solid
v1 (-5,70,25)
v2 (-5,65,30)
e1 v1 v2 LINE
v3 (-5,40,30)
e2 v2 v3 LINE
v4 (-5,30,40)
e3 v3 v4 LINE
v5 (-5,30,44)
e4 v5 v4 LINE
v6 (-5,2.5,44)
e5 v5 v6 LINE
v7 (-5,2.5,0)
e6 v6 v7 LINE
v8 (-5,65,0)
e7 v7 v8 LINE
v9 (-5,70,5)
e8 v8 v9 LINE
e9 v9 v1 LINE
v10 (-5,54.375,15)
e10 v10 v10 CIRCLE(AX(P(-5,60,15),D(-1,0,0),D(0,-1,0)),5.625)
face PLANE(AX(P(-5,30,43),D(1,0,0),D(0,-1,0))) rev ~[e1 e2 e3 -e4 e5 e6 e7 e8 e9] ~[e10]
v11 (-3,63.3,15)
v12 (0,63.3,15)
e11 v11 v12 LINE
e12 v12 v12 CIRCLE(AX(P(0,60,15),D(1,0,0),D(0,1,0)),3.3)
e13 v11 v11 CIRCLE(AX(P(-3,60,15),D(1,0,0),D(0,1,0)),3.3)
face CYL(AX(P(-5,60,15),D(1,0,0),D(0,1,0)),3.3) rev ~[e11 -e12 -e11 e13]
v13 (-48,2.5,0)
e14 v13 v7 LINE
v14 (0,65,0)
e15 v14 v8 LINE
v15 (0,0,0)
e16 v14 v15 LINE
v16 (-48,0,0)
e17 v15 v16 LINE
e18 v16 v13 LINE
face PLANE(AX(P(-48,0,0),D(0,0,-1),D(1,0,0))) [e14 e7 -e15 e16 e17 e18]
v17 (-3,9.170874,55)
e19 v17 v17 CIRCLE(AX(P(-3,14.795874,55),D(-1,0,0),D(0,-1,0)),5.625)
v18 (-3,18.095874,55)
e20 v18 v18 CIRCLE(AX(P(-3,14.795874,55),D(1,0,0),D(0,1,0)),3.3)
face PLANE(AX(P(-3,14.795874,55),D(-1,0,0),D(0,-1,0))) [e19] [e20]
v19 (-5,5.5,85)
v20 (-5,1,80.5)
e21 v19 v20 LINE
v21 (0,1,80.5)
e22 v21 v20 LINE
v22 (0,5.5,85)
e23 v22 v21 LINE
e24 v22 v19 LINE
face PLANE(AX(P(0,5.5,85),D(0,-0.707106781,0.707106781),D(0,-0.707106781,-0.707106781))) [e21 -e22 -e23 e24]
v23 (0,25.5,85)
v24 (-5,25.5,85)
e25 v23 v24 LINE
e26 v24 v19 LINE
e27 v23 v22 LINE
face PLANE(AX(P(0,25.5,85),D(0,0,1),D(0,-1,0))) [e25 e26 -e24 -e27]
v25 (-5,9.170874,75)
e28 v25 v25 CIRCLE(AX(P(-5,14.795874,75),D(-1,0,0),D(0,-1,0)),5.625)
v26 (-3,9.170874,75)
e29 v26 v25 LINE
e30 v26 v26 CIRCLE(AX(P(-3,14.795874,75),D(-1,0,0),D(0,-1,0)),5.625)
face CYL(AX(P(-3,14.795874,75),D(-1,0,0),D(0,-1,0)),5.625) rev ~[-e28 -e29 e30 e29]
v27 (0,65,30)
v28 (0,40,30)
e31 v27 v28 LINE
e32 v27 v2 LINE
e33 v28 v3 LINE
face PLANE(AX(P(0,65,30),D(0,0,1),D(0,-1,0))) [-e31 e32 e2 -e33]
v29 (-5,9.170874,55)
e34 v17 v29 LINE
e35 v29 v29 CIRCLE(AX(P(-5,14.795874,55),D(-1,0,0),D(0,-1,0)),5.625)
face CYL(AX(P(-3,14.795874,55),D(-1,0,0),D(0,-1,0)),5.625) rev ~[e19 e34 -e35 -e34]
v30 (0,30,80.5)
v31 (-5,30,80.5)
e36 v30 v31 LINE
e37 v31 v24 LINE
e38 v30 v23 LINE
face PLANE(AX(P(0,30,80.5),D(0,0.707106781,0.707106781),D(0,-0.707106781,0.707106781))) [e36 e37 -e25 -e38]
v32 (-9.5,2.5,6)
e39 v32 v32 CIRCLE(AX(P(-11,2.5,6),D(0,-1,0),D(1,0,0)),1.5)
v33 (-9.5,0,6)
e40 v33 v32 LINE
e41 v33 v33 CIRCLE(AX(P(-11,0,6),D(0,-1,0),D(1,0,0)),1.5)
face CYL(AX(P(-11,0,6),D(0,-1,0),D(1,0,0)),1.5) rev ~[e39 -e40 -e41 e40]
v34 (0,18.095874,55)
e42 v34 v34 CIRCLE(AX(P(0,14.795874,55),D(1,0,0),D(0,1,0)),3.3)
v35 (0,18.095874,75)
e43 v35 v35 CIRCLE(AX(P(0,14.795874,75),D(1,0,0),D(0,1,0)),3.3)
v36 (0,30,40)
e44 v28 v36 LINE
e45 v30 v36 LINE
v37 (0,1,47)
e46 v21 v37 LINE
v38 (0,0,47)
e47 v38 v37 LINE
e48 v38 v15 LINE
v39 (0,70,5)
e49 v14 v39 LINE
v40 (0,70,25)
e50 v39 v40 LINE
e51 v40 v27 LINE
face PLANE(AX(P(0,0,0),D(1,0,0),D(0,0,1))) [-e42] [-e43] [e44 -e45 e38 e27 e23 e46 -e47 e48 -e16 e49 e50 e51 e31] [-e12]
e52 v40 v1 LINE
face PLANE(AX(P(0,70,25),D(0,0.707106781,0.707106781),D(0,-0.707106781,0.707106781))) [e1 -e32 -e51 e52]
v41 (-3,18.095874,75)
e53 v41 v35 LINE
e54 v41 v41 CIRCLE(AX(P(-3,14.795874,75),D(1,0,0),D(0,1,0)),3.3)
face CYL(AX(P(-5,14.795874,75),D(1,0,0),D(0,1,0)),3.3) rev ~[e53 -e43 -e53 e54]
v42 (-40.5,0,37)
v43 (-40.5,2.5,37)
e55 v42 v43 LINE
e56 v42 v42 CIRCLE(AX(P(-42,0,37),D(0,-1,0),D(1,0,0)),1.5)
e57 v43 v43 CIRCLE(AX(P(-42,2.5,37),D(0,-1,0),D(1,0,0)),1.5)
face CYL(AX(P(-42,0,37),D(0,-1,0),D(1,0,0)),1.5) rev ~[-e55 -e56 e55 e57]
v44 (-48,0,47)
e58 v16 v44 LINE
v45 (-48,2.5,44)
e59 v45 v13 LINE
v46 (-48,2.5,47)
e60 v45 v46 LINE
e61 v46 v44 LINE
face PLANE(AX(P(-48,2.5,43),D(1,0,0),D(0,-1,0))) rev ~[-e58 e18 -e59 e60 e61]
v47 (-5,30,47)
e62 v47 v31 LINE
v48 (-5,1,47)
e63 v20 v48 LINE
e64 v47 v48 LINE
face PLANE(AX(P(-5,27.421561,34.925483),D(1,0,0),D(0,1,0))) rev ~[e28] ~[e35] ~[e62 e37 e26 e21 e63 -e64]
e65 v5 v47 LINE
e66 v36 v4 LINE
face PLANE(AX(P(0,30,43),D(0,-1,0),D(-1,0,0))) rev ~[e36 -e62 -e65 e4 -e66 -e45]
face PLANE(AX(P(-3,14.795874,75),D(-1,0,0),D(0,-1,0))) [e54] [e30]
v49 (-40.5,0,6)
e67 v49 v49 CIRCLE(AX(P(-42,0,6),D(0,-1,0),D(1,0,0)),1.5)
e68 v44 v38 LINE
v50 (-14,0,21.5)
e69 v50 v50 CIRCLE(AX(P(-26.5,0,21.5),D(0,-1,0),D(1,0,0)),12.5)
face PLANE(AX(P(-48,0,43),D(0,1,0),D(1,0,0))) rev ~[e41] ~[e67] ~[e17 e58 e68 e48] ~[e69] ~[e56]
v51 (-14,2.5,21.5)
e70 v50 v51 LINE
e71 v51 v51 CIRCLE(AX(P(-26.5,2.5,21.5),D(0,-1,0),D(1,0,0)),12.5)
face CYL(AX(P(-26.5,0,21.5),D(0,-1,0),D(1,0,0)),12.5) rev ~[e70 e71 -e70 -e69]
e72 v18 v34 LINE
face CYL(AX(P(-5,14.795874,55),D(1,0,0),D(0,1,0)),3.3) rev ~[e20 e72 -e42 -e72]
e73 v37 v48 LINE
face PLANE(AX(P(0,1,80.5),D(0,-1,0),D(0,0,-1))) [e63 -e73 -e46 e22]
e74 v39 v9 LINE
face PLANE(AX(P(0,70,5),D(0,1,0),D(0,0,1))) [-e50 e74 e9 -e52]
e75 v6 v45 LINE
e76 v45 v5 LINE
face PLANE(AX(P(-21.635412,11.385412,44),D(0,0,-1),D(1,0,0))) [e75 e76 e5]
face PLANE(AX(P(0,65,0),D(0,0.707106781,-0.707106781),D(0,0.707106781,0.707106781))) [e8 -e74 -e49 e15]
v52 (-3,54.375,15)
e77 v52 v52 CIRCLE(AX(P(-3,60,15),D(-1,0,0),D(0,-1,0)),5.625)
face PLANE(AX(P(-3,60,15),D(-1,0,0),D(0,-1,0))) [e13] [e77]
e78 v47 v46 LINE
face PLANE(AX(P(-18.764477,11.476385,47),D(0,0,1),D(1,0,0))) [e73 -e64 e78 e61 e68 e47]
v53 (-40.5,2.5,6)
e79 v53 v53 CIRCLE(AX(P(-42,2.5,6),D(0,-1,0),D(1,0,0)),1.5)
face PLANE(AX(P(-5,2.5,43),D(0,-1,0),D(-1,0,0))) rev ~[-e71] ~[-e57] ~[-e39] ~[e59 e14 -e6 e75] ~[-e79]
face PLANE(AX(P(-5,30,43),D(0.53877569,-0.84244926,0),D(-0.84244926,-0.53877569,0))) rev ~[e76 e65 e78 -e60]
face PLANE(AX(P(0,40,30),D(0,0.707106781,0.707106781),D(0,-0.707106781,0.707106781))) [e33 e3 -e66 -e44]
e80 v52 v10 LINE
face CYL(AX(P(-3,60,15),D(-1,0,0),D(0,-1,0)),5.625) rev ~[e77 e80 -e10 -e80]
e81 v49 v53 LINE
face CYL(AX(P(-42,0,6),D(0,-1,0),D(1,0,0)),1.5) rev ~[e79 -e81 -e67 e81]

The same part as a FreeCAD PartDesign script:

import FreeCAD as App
import Part
import Sketcher

V = App.Vector

doc = App.newDocument("Part")
body = doc.addObject("PartDesign::Body", "Body")

# Sketch on XZ plane
sketch1 = doc.addObject("Sketcher::SketchObject", "Sketch")
body.addObject(sketch1)
sketch1.AttachmentSupport = (doc.XZ_Plane, [""])
sketch1.MapMode = "FlatFace"
sketch1.addGeometry(Part.LineSegment(V(-48, 43, 0), V(-48, 0, 0)), False)
sketch1.addGeometry(Part.LineSegment(V(-48, 0, 0), V(0, 0, 0)), False)
sketch1.addGeometry(Part.LineSegment(V(0, 0, 0), V(0, 43, 0)), False)
sketch1.addGeometry(Part.LineSegment(V(0, 43, 0), V(-48, 43, 0)), False)
sketch1.addGeometry(Part.Circle(V(-42, 6, 0), V(0, 0, 1), 1.5), False)
sketch1.addGeometry(Part.Circle(V(-11, 6, 0), V(0, 0, 1), 1.5), False)
sketch1.addGeometry(Part.Circle(V(-42, 37, 0), V(0, 0, 1), 1.5), False)
sketch1.addGeometry(Part.Circle(V(-26.5, 21.5, 0), V(0, 0, 1), 12.5), False)
sketch1.addConstraint(Sketcher.Constraint("Coincident", 0, 2, 1, 1))
sketch1.addConstraint(Sketcher.Constraint("Coincident", 1, 2, 2, 1))
sketch1.addConstraint(Sketcher.Constraint("Coincident", 2, 2, 3, 1))
sketch1.addConstraint(Sketcher.Constraint("Coincident", 3, 2, 0, 1))
sketch1.addConstraint(Sketcher.Constraint("Vertical", 0))
sketch1.addConstraint(Sketcher.Constraint("Horizontal", 1))
sketch1.addConstraint(Sketcher.Constraint("Vertical", 2))
sketch1.addConstraint(Sketcher.Constraint("Horizontal", 3))
sketch1.addConstraint(Sketcher.Constraint("Coincident", 1, 2, -1, 1))
sketch1.addConstraint(Sketcher.Constraint("Equal", 4, 5))
sketch1.addConstraint(Sketcher.Constraint("Equal", 5, 6))
sketch1.addConstraint(Sketcher.Constraint("Horizontal", 4, 3, 5, 3))
sketch1.addConstraint(Sketcher.Constraint("Vertical", 4, 3, 6, 3))
sketch1.addConstraint(Sketcher.Constraint("Diameter", 4, 3.0))
sketch1.addConstraint(Sketcher.Constraint("Diameter", 7, 25.0))
sketch1.addConstraint(Sketcher.Constraint("DistanceX", 1, 1, 1, 2, 48.0))
sketch1.addConstraint(Sketcher.Constraint("DistanceY", 0, 2, 0, 1, 43.0))
sketch1.addConstraint(Sketcher.Constraint("DistanceX", 4, 3, -1, 1, 42.0))
sketch1.addConstraint(Sketcher.Constraint("DistanceY", -1, 1, 4, 3, 6.0))
sketch1.addConstraint(Sketcher.Constraint("DistanceX", 5, 3, -1, 1, 11.0))
sketch1.addConstraint(Sketcher.Constraint("DistanceY", -1, 1, 6, 3, 37.0))
sketch1.addConstraint(Sketcher.Constraint("DistanceX", 7, 3, -1, 1, 26.5))
sketch1.addConstraint(Sketcher.Constraint("DistanceY", -1, 1, 7, 3, 21.5))
pad1 = doc.addObject("PartDesign::Pad", "Pad")
body.addObject(pad1)
pad1.Profile = sketch1
pad1.Length = 2.5
pad1.Reversed = True

# Sketch on YZ plane
sketch2 = doc.addObject("Sketcher::SketchObject", "Sketch001")
body.addObject(sketch2)
sketch2.AttachmentSupport = (doc.YZ_Plane, [""])
sketch2.MapMode = "FlatFace"
sketch2.addGeometry(Part.LineSegment(V(1, 43, 0), V(0, 43, 0)), False)
sketch2.addGeometry(Part.LineSegment(V(0, 43, 0), V(0, 0, 0)), False)
sketch2.addGeometry(Part.LineSegment(V(0, 0, 0), V(65, 0, 0)), False)
sketch2.addGeometry(Part.LineSegment(V(65, 0, 0), V(70, 5, 0)), False)
sketch2.addGeometry(Part.LineSegment(V(70, 5, 0), V(70, 25, 0)), False)
sketch2.addGeometry(Part.LineSegment(V(70, 25, 0), V(65, 30, 0)), False)
sketch2.addGeometry(Part.LineSegment(V(65, 30, 0), V(40, 30, 0)), False)
sketch2.addGeometry(Part.LineSegment(V(40, 30, 0), V(30, 40, 0)), False)
sketch2.addGeometry(Part.LineSegment(V(30, 40, 0), V(30, 80.5, 0)), False)
sketch2.addGeometry(Part.LineSegment(V(30, 80.5, 0), V(25.5, 85, 0)), False)
sketch2.addGeometry(Part.LineSegment(V(25.5, 85, 0), V(5.5, 85, 0)), False)
sketch2.addGeometry(Part.LineSegment(V(5.5, 85, 0), V(1, 80.5, 0)), False)
sketch2.addGeometry(Part.LineSegment(V(1, 80.5, 0), V(1, 43, 0)), False)
sketch2.addConstraint(Sketcher.Constraint("Coincident", 0, 2, 1, 1))
sketch2.addConstraint(Sketcher.Constraint("Coincident", 1, 2, 2, 1))
sketch2.addConstraint(Sketcher.Constraint("Coincident", 2, 2, 3, 1))
sketch2.addConstraint(Sketcher.Constraint("Coincident", 3, 2, 4, 1))
sketch2.addConstraint(Sketcher.Constraint("Coincident", 4, 2, 5, 1))
sketch2.addConstraint(Sketcher.Constraint("Coincident", 5, 2, 6, 1))
sketch2.addConstraint(Sketcher.Constraint("Coincident", 6, 2, 7, 1))
sketch2.addConstraint(Sketcher.Constraint("Coincident", 7, 2, 8, 1))
sketch2.addConstraint(Sketcher.Constraint("Coincident", 8, 2, 9, 1))
sketch2.addConstraint(Sketcher.Constraint("Coincident", 9, 2, 10, 1))
sketch2.addConstraint(Sketcher.Constraint("Coincident", 10, 2, 11, 1))
sketch2.addConstraint(Sketcher.Constraint("Coincident", 11, 2, 12, 1))
sketch2.addConstraint(Sketcher.Constraint("Coincident", 12, 2, 0, 1))
sketch2.addConstraint(Sketcher.Constraint("Horizontal", 0))
sketch2.addConstraint(Sketcher.Constraint("Vertical", 1))
sketch2.addConstraint(Sketcher.Constraint("Horizontal", 2))
sketch2.addConstraint(Sketcher.Constraint("Vertical", 4))
sketch2.addConstraint(Sketcher.Constraint("Horizontal", 6))
sketch2.addConstraint(Sketcher.Constraint("Vertical", 8))
sketch2.addConstraint(Sketcher.Constraint("Horizontal", 10))
sketch2.addConstraint(Sketcher.Constraint("Vertical", 12))
sketch2.addConstraint(Sketcher.Constraint("Coincident", 1, 2, -1, 1))
sketch2.addConstraint(Sketcher.Constraint("Perpendicular", 3, 5))
sketch2.addConstraint(Sketcher.Constraint("Parallel", 5, 7))
sketch2.addConstraint(Sketcher.Constraint("Parallel", 7, 9))
sketch2.addConstraint(Sketcher.Constraint("Perpendicular", 9, 11))
sketch2.addConstraint(Sketcher.Constraint("Horizontal", 8, 2, 11, 2))
sketch2.addConstraint(Sketcher.Constraint("Vertical", 2, 2, 5, 2))
sketch2.addConstraint(Sketcher.Constraint("Equal", 10, 4))
sketch2.addConstraint(Sketcher.Constraint("Equal", 3, 5))
sketch2.addConstraint(Sketcher.Constraint("DistanceX", 0, 2, 0, 1, 1.0))
sketch2.addConstraint(Sketcher.Constraint("DistanceX", 2, 1, 2, 2, 65.0))
sketch2.addConstraint(Sketcher.Constraint("DistanceX", 6, 2, 6, 1, 25.0))
sketch2.addConstraint(Sketcher.Constraint("DistanceX", 10, 2, 10, 1, 20.0))
sketch2.addConstraint(Sketcher.Constraint("DistanceY", 1, 2, 1, 1, 43.0))
sketch2.addConstraint(Sketcher.Constraint("DistanceY", 8, 1, 8, 2, 40.5))
sketch2.addConstraint(Sketcher.Constraint("DistanceY", 12, 2, 12, 1, 37.5))
sketch2.addConstraint(Sketcher.Constraint("DistanceX", -1, 1, 3, 2, 70.0))
pad2 = doc.addObject("PartDesign::Pad", "Pad001")
body.addObject(pad2)
pad2.Profile = sketch2
pad2.Length = 5
pad2.Reversed = True

# Sketch on YZ plane
sketch3 = doc.addObject("Sketcher::SketchObject", "Sketch002")
body.addObject(sketch3)
sketch3.AttachmentSupport = (doc.YZ_Plane, [""])
sketch3.MapMode = "FlatFace"
sketch3.AttachmentOffset = App.Placement(V(0, 0, -5), App.Rotation())
sketch3.addGeometry(Part.Circle(V(14.8, 75, 0), V(0, 0, 1), 3.3), False)
sketch3.addGeometry(Part.Circle(V(14.8, 55, 0), V(0, 0, 1), 3.3), False)
sketch3.addGeometry(Part.Circle(V(60, 15, 0), V(0, 0, 1), 3.3), False)
sketch3.addConstraint(Sketcher.Constraint("Equal", 0, 1))
sketch3.addConstraint(Sketcher.Constraint("Equal", 1, 2))
sketch3.addConstraint(Sketcher.Constraint("Vertical", 0, 3, 1, 3))
sketch3.addConstraint(Sketcher.Constraint("Diameter", 0, 6.6))
sketch3.addConstraint(Sketcher.Constraint("DistanceY", -1, 1, 0, 3, 75.0))
sketch3.addConstraint(Sketcher.Constraint("DistanceY", -1, 1, 1, 3, 55.0))
sketch3.addConstraint(Sketcher.Constraint("DistanceX", -1, 1, 2, 3, 60.0))
sketch3.addConstraint(Sketcher.Constraint("DistanceY", -1, 1, 2, 3, 15.0))
sketch3.addConstraint(Sketcher.Constraint("DistanceX", -1, 1, 0, 3, 14.795874))
doc.recompute()
hole = doc.addObject("PartDesign::Hole", "Hole")
body.addObject(hole)
hole.Profile = sketch3
hole.ThreadType = "None"
hole.Diameter = 6.6
hole.DepthType = "Dimension"
hole.Depth = 20
hole.DrillPoint = "Flat"
hole.HoleCutType = "Counterbore"
hole.HoleCutDiameter = 11.25
hole.HoleCutDepth = 2
hole.Reversed = True

# Sketch on XY plane
sketch4 = doc.addObject("Sketcher::SketchObject", "Sketch003")
body.addObject(sketch4)
sketch4.AttachmentSupport = (doc.XY_Plane, [""])
sketch4.MapMode = "FlatFace"
sketch4.AttachmentOffset = App.Placement(V(0, 0, 43), App.Rotation())
sketch4.addGeometry(Part.LineSegment(V(-5, 30, 0), V(-48, 2.5, 0)), False)
sketch4.addGeometry(Part.LineSegment(V(-48, 2.5, 0), V(-48, 0, 0)), False)
sketch4.addGeometry(Part.LineSegment(V(-48, 0, 0), V(0, 0, 0)), False)
sketch4.addGeometry(Part.LineSegment(V(0, 0, 0), V(0, 30, 0)), False)
sketch4.addGeometry(Part.LineSegment(V(0, 30, 0), V(-5, 30, 0)), False)
sketch4.addConstraint(Sketcher.Constraint("Coincident", 0, 2, 1, 1))
sketch4.addConstraint(Sketcher.Constraint("Coincident", 1, 2, 2, 1))
sketch4.addConstraint(Sketcher.Constraint("Coincident", 2, 2, 3, 1))
sketch4.addConstraint(Sketcher.Constraint("Coincident", 3, 2, 4, 1))
sketch4.addConstraint(Sketcher.Constraint("Coincident", 4, 2, 0, 1))
sketch4.addConstraint(Sketcher.Constraint("Vertical", 1))
sketch4.addConstraint(Sketcher.Constraint("Horizontal", 2))
sketch4.addConstraint(Sketcher.Constraint("Vertical", 3))
sketch4.addConstraint(Sketcher.Constraint("Horizontal", 4))
sketch4.addConstraint(Sketcher.Constraint("Coincident", 2, 2, -1, 1))
sketch4.addConstraint(Sketcher.Constraint("DistanceX", 2, 1, 2, 2, 48.0))
sketch4.addConstraint(Sketcher.Constraint("DistanceX", 4, 2, 4, 1, 5.0))
sketch4.addConstraint(Sketcher.Constraint("DistanceY", 3, 1, 3, 2, 30.0))
sketch4.addConstraint(Sketcher.Constraint("DistanceY", 1, 2, 1, 1, 2.5))
pad3 = doc.addObject("PartDesign::Pad", "Pad002")
body.addObject(pad3)
pad3.Profile = sketch4
pad3.Length = 4

# Sketch on XY plane
sketch5 = doc.addObject("Sketcher::SketchObject", "Sketch004")
body.addObject(sketch5)
sketch5.AttachmentSupport = (doc.XY_Plane, [""])
sketch5.MapMode = "FlatFace"
sketch5.AttachmentOffset = App.Placement(V(0, 0, 43), App.Rotation())
sketch5.addGeometry(Part.LineSegment(V(-5, 30, 0), V(-5, 2, 0)), False)
sketch5.addGeometry(Part.LineSegment(V(-5, 2, 0), V(-48, 2, 0)), False)
sketch5.addGeometry(Part.LineSegment(V(-48, 2, 0), V(-5, 30, 0)), False)
sketch5.addConstraint(Sketcher.Constraint("Coincident", 0, 2, 1, 1))
sketch5.addConstraint(Sketcher.Constraint("Coincident", 1, 2, 2, 1))
sketch5.addConstraint(Sketcher.Constraint("Coincident", 2, 2, 0, 1))
sketch5.addConstraint(Sketcher.Constraint("Vertical", 0))
sketch5.addConstraint(Sketcher.Constraint("Horizontal", 1))
sketch5.addConstraint(Sketcher.Constraint("DistanceX", 1, 2, 1, 1, 43.0))
sketch5.addConstraint(Sketcher.Constraint("DistanceY", 0, 2, 0, 1, 27.5))
sketch5.addConstraint(Sketcher.Constraint("DistanceX", 0, 2, -1, 1, 5.0))
sketch5.addConstraint(Sketcher.Constraint("DistanceY", -1, 1, 2, 2, 30.0))
pocket1 = doc.addObject("PartDesign::Pocket", "Pocket")
body.addObject(pocket1)
pocket1.Profile = sketch5
pocket1.Length = 1
pocket1.Reversed = True

doc.recompute()
